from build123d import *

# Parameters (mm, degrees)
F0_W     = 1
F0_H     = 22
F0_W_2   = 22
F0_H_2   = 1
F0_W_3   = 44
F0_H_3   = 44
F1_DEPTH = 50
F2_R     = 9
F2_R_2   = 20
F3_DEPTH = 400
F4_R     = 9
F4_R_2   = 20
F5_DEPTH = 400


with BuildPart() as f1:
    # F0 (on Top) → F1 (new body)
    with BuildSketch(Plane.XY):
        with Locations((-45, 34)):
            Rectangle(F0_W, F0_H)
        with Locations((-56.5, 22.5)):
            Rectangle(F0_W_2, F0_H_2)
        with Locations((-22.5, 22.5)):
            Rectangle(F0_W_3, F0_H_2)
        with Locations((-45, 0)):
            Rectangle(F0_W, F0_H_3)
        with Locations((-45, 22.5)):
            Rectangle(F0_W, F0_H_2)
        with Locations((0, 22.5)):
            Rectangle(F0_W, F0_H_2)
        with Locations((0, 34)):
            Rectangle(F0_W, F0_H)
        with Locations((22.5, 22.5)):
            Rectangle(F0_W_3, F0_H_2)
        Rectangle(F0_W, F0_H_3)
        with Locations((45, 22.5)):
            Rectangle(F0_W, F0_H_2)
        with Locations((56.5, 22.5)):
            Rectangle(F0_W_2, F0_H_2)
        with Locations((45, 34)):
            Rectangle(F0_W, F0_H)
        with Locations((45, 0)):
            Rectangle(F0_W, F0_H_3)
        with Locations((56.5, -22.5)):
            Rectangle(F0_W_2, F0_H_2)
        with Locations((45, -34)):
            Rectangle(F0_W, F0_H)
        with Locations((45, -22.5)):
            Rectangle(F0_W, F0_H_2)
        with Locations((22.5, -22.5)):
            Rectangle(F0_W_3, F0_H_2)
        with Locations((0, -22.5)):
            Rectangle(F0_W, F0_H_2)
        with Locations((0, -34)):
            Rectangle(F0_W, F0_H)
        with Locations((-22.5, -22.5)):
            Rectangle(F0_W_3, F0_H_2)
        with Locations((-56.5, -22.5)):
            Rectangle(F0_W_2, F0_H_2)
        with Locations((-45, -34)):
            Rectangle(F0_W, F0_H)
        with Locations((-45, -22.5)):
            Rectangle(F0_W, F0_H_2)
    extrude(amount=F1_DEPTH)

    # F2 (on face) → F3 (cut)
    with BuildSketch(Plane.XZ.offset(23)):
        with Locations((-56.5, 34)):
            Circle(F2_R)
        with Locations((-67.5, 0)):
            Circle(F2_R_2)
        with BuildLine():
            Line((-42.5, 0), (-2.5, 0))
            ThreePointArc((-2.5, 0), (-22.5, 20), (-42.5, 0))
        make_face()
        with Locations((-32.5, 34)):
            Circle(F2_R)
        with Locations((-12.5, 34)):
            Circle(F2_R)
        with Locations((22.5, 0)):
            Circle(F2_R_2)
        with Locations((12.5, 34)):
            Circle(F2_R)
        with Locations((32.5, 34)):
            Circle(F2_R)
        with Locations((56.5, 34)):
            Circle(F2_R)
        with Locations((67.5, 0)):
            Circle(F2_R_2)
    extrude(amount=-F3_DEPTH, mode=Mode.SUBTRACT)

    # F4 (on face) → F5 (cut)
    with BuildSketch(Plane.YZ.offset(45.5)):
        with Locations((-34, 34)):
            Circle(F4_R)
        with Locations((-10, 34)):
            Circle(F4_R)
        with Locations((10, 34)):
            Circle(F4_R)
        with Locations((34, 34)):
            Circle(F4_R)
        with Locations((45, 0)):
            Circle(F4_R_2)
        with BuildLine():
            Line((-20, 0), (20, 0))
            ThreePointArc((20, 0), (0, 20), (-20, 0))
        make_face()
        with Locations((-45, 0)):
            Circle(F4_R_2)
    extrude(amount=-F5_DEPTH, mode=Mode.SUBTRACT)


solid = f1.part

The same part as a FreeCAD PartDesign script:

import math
import FreeCAD as App
import Part
import Sketcher
from FreeCAD import Vector
Q = App.Units.Quantity


def add_polygon(sketch, points):
    """Adds a closed chain of lines whose ends are joined by coincident constraints."""
    first, n = sketch.GeometryCount, len(points)
    for a, b in zip(points, points[1:] + points[:1]):
        sketch.addGeometry(Part.LineSegment(App.Vector(*a, 0), App.Vector(*b, 0)), False)
    for i in range(n):
        sketch.addConstraint(Sketcher.Constraint("Coincident", first + i, 2, first + (i + 1) % n, 1))

doc = App.newDocument("Part")
body = doc.addObject("PartDesign::Body", "Body")

# Sketch on XY plane
sketch1 = body.newObject("Sketcher::SketchObject", "Sketch")
sketch1.AttachmentSupport = (doc.getObject("XY_Plane"), [""])
sketch1.MapMode = "FlatFace"
add_polygon(sketch1, [(-45.5, 22), (-45.5, -22), (-67.5, -22), (-67.5, -23), (-45.5, -23), (-45.5, -45), (-44.5, -45), (-44.5, -23), (-0.5, -23), (-0.5, -45), (0.5, -45), (0.5, -23), (44.5, -23), (44.5, -45), (45.5, -45), (45.5, -23), (67.5, -23), (67.5, -22), (45.5, -22), (45.5, 22), (67.5, 22), (67.5, 23), (45.5, 23), (45.5, 45), (44.5, 45), (44.5, 23), (0.5, 23), (0.5, 45), (-0.5, 45), (-0.5, 23), (-44.5, 23), (-44.5, 45), (-45.5, 45), (-45.5, 23), (-67.5, 23), (-67.5, 22)])  # lines 0-35
add_polygon(sketch1, [(-0.5, -22), (-44.5, -22), (-44.5, 22), (-0.5, 22)])  # lines 36-39
add_polygon(sketch1, [(44.5, -22), (0.5, -22), (0.5, 22), (44.5, 22)])  # lines 40-43
sketch1.addConstraint([
    Sketcher.Constraint("Vertical", 0),
    Sketcher.Constraint("Horizontal", 1),
    Sketcher.Constraint("Vertical", 2),
    Sketcher.Constraint("Horizontal", 3),
    Sketcher.Constraint("Vertical", 4),
    Sketcher.Constraint("Horizontal", 5),
    Sketcher.Constraint("Vertical", 6),
    Sketcher.Constraint("Horizontal", 7),
    Sketcher.Constraint("Vertical", 8),
    Sketcher.Constraint("Horizontal", 9),
    Sketcher.Constraint("Vertical", 10),
    Sketcher.Constraint("Horizontal", 11),
    Sketcher.Constraint("Vertical", 12),
    Sketcher.Constraint("Horizontal", 13),
    Sketcher.Constraint("Vertical", 14),
    Sketcher.Constraint("Horizontal", 15),
    Sketcher.Constraint("Vertical", 16),
    Sketcher.Constraint("Horizontal", 17),
    Sketcher.Constraint("Vertical", 18),
    Sketcher.Constraint("Horizontal", 19),
    Sketcher.Constraint("Vertical", 20),
    Sketcher.Constraint("Horizontal", 21),
    Sketcher.Constraint("Vertical", 22),
    Sketcher.Constraint("Horizontal", 23),
    Sketcher.Constraint("Vertical", 24),
    Sketcher.Constraint("Horizontal", 25),
    Sketcher.Constraint("Vertical", 26),
    Sketcher.Constraint("Horizontal", 27),
    Sketcher.Constraint("Vertical", 28),
    Sketcher.Constraint("Horizontal", 29),
    Sketcher.Constraint("Vertical", 30),
    Sketcher.Constraint("Horizontal", 31),
    Sketcher.Constraint("Vertical", 32),
    Sketcher.Constraint("Horizontal", 33),
    Sketcher.Constraint("Vertical", 34),
    Sketcher.Constraint("Horizontal", 35),
    Sketcher.Constraint("Horizontal", 36),
    Sketcher.Constraint("Vertical", 37),
    Sketcher.Constraint("Horizontal", 38),
    Sketcher.Constraint("Vertical", 39),
    Sketcher.Constraint("Horizontal", 40),
    Sketcher.Constraint("Vertical", 41),
    Sketcher.Constraint("Horizontal", 42),
    Sketcher.Constraint("Vertical", 43),
    Sketcher.Constraint("Symmetric", 0, 2, 18, 2, -1, 1),
    Sketcher.Constraint("Symmetric", 2, 2, 20, 2, -1, 1),
    Sketcher.Constraint("Symmetric", 4, 2, 22, 2, -1, 1),
    Sketcher.Constraint("Symmetric", 6, 2, 24, 2, -1, 1),
    Sketcher.Constraint("Symmetric", 8, 2, 26, 2, -1, 1),
    Sketcher.Constraint("Symmetric", 10, 2, 28, 2, -1, 1),
    Sketcher.Constraint("Symmetric", 12, 2, 30, 2, -1, 1),
    Sketcher.Constraint("Symmetric", 14, 2, 32, 2, -1, 1),
    Sketcher.Constraint("Symmetric", 16, 2, 34, 2, -1, 1),
    Sketcher.Constraint("Symmetric", 38, 2, 40, 2, -1, 1),
    Sketcher.Constraint("Symmetric", 36, 2, 42, 2, -1, 1),
    Sketcher.Constraint("Symmetric", 7, 2, 10, 2, -2),
    Sketcher.Constraint("Symmetric", 5, 2, 12, 2, -2),
    Sketcher.Constraint("Symmetric", 3, 2, 14, 2, -2),
    Sketcher.Constraint("Symmetric", 1, 2, 16, 2, -2),
    Sketcher.Constraint("Horizontal", 3, 2, 6, 2),
    Sketcher.Constraint("Horizontal", 5, 2, 8, 2),
    Sketcher.Constraint("Horizontal", 17, 2, 36, 2),
    Sketcher.Constraint("Horizontal", 35, 2, 37, 2),
    Sketcher.Constraint("Vertical", 0, 2, 3, 2),
    Sketcher.Constraint("Vertical", 30, 2, 36, 2),
    Sketcher.Constraint("Vertical", 28, 2, 38, 2),
    Sketcher.Constraint("Equal", 5, 9),
    Sketcher.Constraint("Equal", 42, 0),
    Sketcher.Constraint("Equal", 31, 2),
    Sketcher.Constraint("Equal", 35, 4),
    Sketcher.Constraint("DistanceX", 1, 2, 1, 1, Q("22 mm")),
    Sketcher.Constraint("DistanceX", 5, 1, 5, 2, Q("1 mm")),
    Sketcher.Constraint("DistanceX", 7, 1, 7, 2, Q("44 mm")),
])
pad1 = body.newObject("PartDesign::Pad", "Pad")
pad1.Profile = sketch1
pad1.Length = 50

# Sketch on XZ plane
sketch2 = body.newObject("Sketcher::SketchObject", "Sketch001")
sketch2.AttachmentSupport = (doc.getObject("XZ_Plane"), [""])
sketch2.MapMode = "FlatFace"
sketch2.AttachmentOffset = App.Placement(Vector(0, 0, 23), App.Rotation())
sketch2.addGeometry([
    Part.Circle(Vector(-56, 34, 0), Vector(0, 0, 1), 9),  # 0
    Part.Circle(Vector(-68, 0, 0), Vector(0, 0, 1), 20),  # 1
    Part.LineSegment(Vector(-42, 0, 0), Vector(-2, 0, 0)),  # 2
    Part.ArcOfCircle(Part.Circle(Vector(-22, 0, 0), Vector(0, 0, 1), 20), math.radians(0), math.radians(180)),  # 3
    Part.Circle(Vector(-32, 34, 0), Vector(0, 0, 1), 9),  # 4
    Part.Circle(Vector(-12, 34, 0), Vector(0, 0, 1), 9),  # 5
    Part.Circle(Vector(22, 0, 0), Vector(0, 0, 1), 20),  # 6
    Part.Circle(Vector(12, 34, 0), Vector(0, 0, 1), 9),  # 7
    Part.Circle(Vector(32, 34, 0), Vector(0, 0, 1), 9),  # 8
    Part.Circle(Vector(56, 34, 0), Vector(0, 0, 1), 9),  # 9
    Part.Circle(Vector(68, 0, 0), Vector(0, 0, 1), 20),  # 10
], False)
sketch2.addConstraint([
    Sketcher.Constraint("Coincident", 2, 1, 3, 2),
    Sketcher.Constraint("Coincident", 3, 1, 2, 2),
    Sketcher.Constraint("Horizontal", 2),
    Sketcher.Constraint("Equal", 1, 3),
    Sketcher.Constraint("Equal", 0, 4),
    Sketcher.Constraint("Equal", 4, 5),
    Sketcher.Constraint("Equal", 3, 6),
    Sketcher.Constraint("Equal", 5, 7),
    Sketcher.Constraint("Equal", 7, 8),
    Sketcher.Constraint("Equal", 8, 9),
    Sketcher.Constraint("Equal", 6, 10),
    Sketcher.Constraint("Symmetric", 3, 3, 6, 3, -1, 1),
    Sketcher.Constraint("Symmetric", 1, 3, 10, 3, -1, 1),
    Sketcher.Constraint("Symmetric", 5, 3, 7, 3, -2),
    Sketcher.Constraint("Symmetric", 4, 3, 8, 3, -2),
    Sketcher.Constraint("Symmetric", 0, 3, 9, 3, -2),
    Sketcher.Constraint("PointOnObject", 1, 3, -1),
    Sketcher.Constraint("PointOnObject", 3, 3, -1),
    Sketcher.Constraint("PointOnObject", 2, 1, -1),
    Sketcher.Constraint("Horizontal", 0, 3, 4, 3),
    Sketcher.Constraint("Horizontal", 4, 3, 5, 3),
    Sketcher.Constraint("Diameter", 0, Q("18 mm")),
    Sketcher.Constraint("Diameter", 1, Q("40 mm")),
    Sketcher.Constraint("DistanceY", -1, 1, 0, 3, Q("34 mm")),
    Sketcher.Constraint("DistanceX", 1, 3, 0, 3, Q("11 mm")),
    Sketcher.Constraint("DistanceX", 1, 3, 3, 3, Q("45 mm")),
    Sketcher.Constraint("DistanceX", 0, 3, 4, 3, Q("24 mm")),
    Sketcher.Constraint("DistanceX", 4, 3, 5, 3, Q("20 mm")),
    Sketcher.Constraint("DistanceX", 3, 3, 6, 3, Q("45 mm")),
])
pocket1 = body.newObject("PartDesign::Pocket", "Pocket")
pocket1.Profile = sketch2
pocket1.Length = 400

# Sketch on YZ plane
sketch3 = body.newObject("Sketcher::SketchObject", "Sketch002")
sketch3.AttachmentSupport = (doc.getObject("YZ_Plane"), [""])
sketch3.MapMode = "FlatFace"
sketch3.AttachmentOffset = App.Placement(Vector(0, 0, 45.5), App.Rotation())
sketch3.addGeometry([
    Part.Circle(Vector(-34, 34, 0), Vector(0, 0, 1), 9),  # 0
    Part.Circle(Vector(-10, 34, 0), Vector(0, 0, 1), 9),  # 1
    Part.Circle(Vector(10, 34, 0), Vector(0, 0, 1), 9),  # 2
    Part.Circle(Vector(34, 34, 0), Vector(0, 0, 1), 9),  # 3
    Part.Circle(Vector(45, 0, 0), Vector(0, 0, 1), 20),  # 4
    Part.LineSegment(Vector(-20, 0, 0), Vector(20, 0, 0)),  # 5
    Part.ArcOfCircle(Part.Circle(Vector(0, 0, 0), Vector(0, 0, 1), 20), math.radians(0), math.radians(180)),  # 6
    Part.Circle(Vector(-45, 0, 0), Vector(0, 0, 1), 20),  # 7
], False)
sketch3.addConstraint([
    Sketcher.Constraint("Coincident", 5, 1, 6, 2),
    Sketcher.Constraint("Coincident", 6, 1, 5, 2),
    Sketcher.Constraint("Horizontal", 5),
    Sketcher.Constraint("Coincident", 6, 3, -1, 1),
    Sketcher.Constraint("Equal", 0, 1),
    Sketcher.Constraint("Equal", 1, 2),
    Sketcher.Constraint("Equal", 2, 3),
    Sketcher.Constraint("Equal", 4, 6),
    Sketcher.Constraint("Equal", 6, 7),
    Sketcher.Constraint("Symmetric", 4, 3, 7, 3, -1, 1),
    Sketcher.Constraint("Symmetric", 1, 3, 2, 3, -2),
    Sketcher.Constraint("Symmetric", 0, 3, 3, 3, -2),
    Sketcher.Constraint("PointOnObject", 4, 3, -1),
    Sketcher.Constraint("PointOnObject", 5, 1, -1),
    Sketcher.Constraint("Horizontal", 0, 3, 1, 3),
    Sketcher.Constraint("Diameter", 0, Q("18 mm")),
    Sketcher.Constraint("Diameter", 4, Q("40 mm")),
    Sketcher.Constraint("DistanceX", 0, 3, -1, 1, Q("34 mm")),
    Sketcher.Constraint("DistanceY", -1, 1, 0, 3, Q("34 mm")),
    Sketcher.Constraint("DistanceX", 1, 3, -1, 1, Q("10 mm")),
    Sketcher.Constraint("DistanceX", -1, 1, 4, 3, Q("45 mm")),
])
pocket2 = body.newObject("PartDesign::Pocket", "Pocket001")
pocket2.Profile = sketch3
pocket2.Length = 400

doc.recompute()
